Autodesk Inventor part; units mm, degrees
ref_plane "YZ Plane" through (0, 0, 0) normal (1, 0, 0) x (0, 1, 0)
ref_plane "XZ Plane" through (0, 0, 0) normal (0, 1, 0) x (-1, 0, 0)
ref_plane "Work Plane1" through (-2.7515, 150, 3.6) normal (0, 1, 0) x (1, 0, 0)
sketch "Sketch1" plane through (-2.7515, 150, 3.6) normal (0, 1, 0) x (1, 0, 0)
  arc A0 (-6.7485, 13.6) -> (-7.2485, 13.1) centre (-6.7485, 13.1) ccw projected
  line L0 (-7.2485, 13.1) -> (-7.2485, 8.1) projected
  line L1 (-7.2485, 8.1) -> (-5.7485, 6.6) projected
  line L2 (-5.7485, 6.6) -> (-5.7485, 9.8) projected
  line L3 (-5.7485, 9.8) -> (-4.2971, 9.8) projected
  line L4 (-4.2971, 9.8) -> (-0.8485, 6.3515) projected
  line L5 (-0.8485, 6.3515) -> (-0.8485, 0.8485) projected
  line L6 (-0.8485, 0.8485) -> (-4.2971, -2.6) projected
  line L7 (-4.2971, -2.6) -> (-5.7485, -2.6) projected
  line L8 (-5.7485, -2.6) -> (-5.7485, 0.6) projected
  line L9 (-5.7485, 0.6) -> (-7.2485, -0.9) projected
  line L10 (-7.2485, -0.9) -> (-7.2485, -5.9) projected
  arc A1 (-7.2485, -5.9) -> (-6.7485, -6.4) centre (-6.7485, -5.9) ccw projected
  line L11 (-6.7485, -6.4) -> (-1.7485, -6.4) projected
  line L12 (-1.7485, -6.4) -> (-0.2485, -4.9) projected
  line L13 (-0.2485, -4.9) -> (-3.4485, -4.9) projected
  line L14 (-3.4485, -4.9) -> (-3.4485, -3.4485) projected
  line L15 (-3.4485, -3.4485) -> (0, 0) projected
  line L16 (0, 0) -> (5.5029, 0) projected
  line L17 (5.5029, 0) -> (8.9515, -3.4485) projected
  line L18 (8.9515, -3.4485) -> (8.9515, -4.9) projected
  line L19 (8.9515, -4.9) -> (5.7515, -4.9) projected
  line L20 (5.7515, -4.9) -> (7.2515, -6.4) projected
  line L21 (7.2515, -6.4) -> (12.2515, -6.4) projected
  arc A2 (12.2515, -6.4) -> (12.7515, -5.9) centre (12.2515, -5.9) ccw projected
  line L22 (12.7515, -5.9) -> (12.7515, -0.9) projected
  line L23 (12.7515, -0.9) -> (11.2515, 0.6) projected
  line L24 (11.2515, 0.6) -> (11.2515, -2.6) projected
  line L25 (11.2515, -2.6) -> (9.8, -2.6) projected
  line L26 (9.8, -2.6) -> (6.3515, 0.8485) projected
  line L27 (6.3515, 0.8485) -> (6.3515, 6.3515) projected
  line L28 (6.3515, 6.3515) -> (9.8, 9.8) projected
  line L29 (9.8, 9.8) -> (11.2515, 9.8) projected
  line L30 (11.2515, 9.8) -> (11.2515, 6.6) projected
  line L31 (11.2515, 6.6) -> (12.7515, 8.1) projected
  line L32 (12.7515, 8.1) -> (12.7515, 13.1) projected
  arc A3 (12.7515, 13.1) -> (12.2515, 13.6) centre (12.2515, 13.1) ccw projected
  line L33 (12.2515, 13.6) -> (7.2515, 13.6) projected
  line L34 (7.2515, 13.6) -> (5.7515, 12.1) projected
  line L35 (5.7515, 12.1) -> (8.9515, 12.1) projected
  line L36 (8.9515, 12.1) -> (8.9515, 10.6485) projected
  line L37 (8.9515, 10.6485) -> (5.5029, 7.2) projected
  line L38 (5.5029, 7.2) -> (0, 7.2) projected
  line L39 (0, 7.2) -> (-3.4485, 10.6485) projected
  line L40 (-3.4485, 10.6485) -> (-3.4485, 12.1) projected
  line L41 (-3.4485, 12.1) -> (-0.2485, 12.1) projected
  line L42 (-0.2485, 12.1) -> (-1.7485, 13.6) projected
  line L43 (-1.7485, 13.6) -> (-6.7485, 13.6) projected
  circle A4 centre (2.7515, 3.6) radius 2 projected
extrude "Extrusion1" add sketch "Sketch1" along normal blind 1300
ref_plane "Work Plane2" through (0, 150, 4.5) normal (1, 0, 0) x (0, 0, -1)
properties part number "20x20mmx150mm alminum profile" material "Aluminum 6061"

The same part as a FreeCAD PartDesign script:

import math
import FreeCAD as App
import Part
import Sketcher
from FreeCAD import Vector
Q = App.Units.Quantity

doc = App.newDocument("Part")
params = doc.addObject("Spreadsheet::Sheet", "Params")
for row, (alias, value) in enumerate([
    ("sketch1_diameter", "4 mm"),
    ("sketch1_radius", "0.5 mm"),
    ("sketch1_width", "5 mm"),
    ("sketch1_width2", "3.2 mm"),
    ("pad1_length", "1300 mm"),
], start=1):
    params.set(f"A{row}", alias)
    params.set(f"B{row}", "=" + value)
    params.setAlias(f"B{row}", alias)

body = doc.addObject("PartDesign::Body", "Body")

sketch1 = body.newObject("Sketcher::SketchObject", "Sketch")
sketch1.AttachmentSupport = (doc.getObject("XZ_Plane"), [""])
sketch1.MapMode = "FlatFace"
sketch1.AttachmentOffset = App.Placement(Vector(0, 0, -150), App.Rotation())
sketch1.addGeometry([
    Part.LineSegment(Vector(-4.5, -10, 0), Vector(-9.5, -10, 0)),
    Part.ArcOfCircle(Part.Circle(Vector(-9.5, -9.5, 0), Vector(0, 0, 1), 0.5), math.radians(180), math.radians(270)),
    Part.LineSegment(Vector(-10, -9.5, 0), Vector(-10, -4.5, 0)),
    Part.LineSegment(Vector(-10, -4.5, 0), Vector(-8.5, -3, 0)),
    Part.LineSegment(Vector(-8.5, -3, 0), Vector(-8.5, -6.2, 0)),
    Part.LineSegment(Vector(-8.5, -6.2, 0), Vector(-7, -6.2, 0)),
    Part.LineSegment(Vector(-7, -6.2, 0), Vector(-3.6, -2.8, 0)),
    Part.LineSegment(Vector(-3.6, -2.8, 0), Vector(-3.6, 2.8, 0)),
    Part.LineSegment(Vector(-3.6, 2.8, 0), Vector(-7, 6.2, 0)),
    Part.LineSegment(Vector(-7, 6.2, 0), Vector(-8.5, 6.2, 0)),
    Part.LineSegment(Vector(-8.5, 6.2, 0), Vector(-8.5, 3, 0)),
    Part.LineSegment(Vector(-8.5, 3, 0), Vector(-10, 4.5, 0)),
    Part.LineSegment(Vector(-10, 4.5, 0), Vector(-10, 9.5, 0)),
    Part.ArcOfCircle(Part.Circle(Vector(-9.5, 9.5, 0), Vector(0, 0, 1), 0.5), math.radians(90), math.radians(180)),
    Part.LineSegment(Vector(-9.5, 10, 0), Vector(-4.5, 10, 0)),
    Part.LineSegment(Vector(-4.5, 10, 0), Vector(-3, 8.5, 0)),
    Part.LineSegment(Vector(-3, 8.5, 0), Vector(-6.2, 8.5, 0)),
    Part.LineSegment(Vector(-6.2, 8.5, 0), Vector(-6.2, 7, 0)),
    Part.LineSegment(Vector(-6.2, 7, 0), Vector(-2.8, 3.6, 0)),
    Part.LineSegment(Vector(-2.8, 3.6, 0), Vector(2.8, 3.6, 0)),
    Part.LineSegment(Vector(2.8, 3.6, 0), Vector(6.2, 7, 0)),
    Part.LineSegment(Vector(6.2, 7, 0), Vector(6.2, 8.5, 0)),
    Part.LineSegment(Vector(6.2, 8.5, 0), Vector(3, 8.5, 0)),
    Part.LineSegment(Vector(3, 8.5, 0), Vector(4.5, 10, 0)),
    Part.LineSegment(Vector(4.5, 10, 0), Vector(9.5, 10, 0)),
    Part.ArcOfCircle(Part.Circle(Vector(9.5, 9.5, 0), Vector(0, 0, 1), 0.5), math.radians(0), math.radians(90)),
    Part.LineSegment(Vector(10, 9.5, 0), Vector(10, 4.5, 0)),
    Part.LineSegment(Vector(10, 4.5, 0), Vector(8.5, 3, 0)),
    Part.LineSegment(Vector(8.5, 3, 0), Vector(8.5, 6.2, 0)),
    Part.LineSegment(Vector(8.5, 6.2, 0), Vector(7, 6.2, 0)),
    Part.LineSegment(Vector(7, 6.2, 0), Vector(3.6, 2.8, 0)),
    Part.LineSegment(Vector(3.6, 2.8, 0), Vector(3.6, -2.8, 0)),
    Part.LineSegment(Vector(3.6, -2.8, 0), Vector(7, -6.2, 0)),
    Part.LineSegment(Vector(7, -6.2, 0), Vector(8.5, -6.2, 0)),
    Part.LineSegment(Vector(8.5, -6.2, 0), Vector(8.5, -3, 0)),
    Part.LineSegment(Vector(8.5, -3, 0), Vector(10, -4.5, 0)),
    Part.LineSegment(Vector(10, -4.5, 0), Vector(10, -9.5, 0)),
    Part.ArcOfCircle(Part.Circle(Vector(9.5, -9.5, 0), Vector(0, 0, 1), 0.5), math.radians(-90), math.radians(0)),
    Part.LineSegment(Vector(9.5, -10, 0), Vector(4.5, -10, 0)),
    Part.LineSegment(Vector(4.5, -10, 0), Vector(3, -8.5, 0)),
    Part.LineSegment(Vector(3, -8.5, 0), Vector(6.2, -8.5, 0)),
    Part.LineSegment(Vector(6.2, -8.5, 0), Vector(6.2, -7, 0)),
    Part.LineSegment(Vector(6.2, -7, 0), Vector(2.8, -3.6, 0)),
    Part.LineSegment(Vector(2.8, -3.6, 0), Vector(-2.8, -3.6, 0)),
    Part.LineSegment(Vector(-2.8, -3.6, 0), Vector(-6.2, -7, 0)),
    Part.LineSegment(Vector(-6.2, -7, 0), Vector(-6.2, -8.5, 0)),
    Part.LineSegment(Vector(-6.2, -8.5, 0), Vector(-3, -8.5, 0)),
    Part.LineSegment(Vector(-3, -8.5, 0), Vector(-4.5, -10, 0)),
    Part.Circle(Vector(0, 0, 0), Vector(0, 0, 1), 2),
], False)
sketch1.addConstraint([
    Sketcher.Constraint("Tangent", 0, 2, 1, 2),
    Sketcher.Constraint("Tangent", 1, 1, 2, 1),
    Sketcher.Constraint("Coincident", 2, 2, 3, 1),
    Sketcher.Constraint("Coincident", 3, 2, 4, 1),
    Sketcher.Constraint("Coincident", 4, 2, 5, 1),
    Sketcher.Constraint("Coincident", 5, 2, 6, 1),
    Sketcher.Constraint("Coincident", 6, 2, 7, 1),
    Sketcher.Constraint("Coincident", 7, 2, 8, 1),
    Sketcher.Constraint("Coincident", 8, 2, 9, 1),
    Sketcher.Constraint("Coincident", 9, 2, 10, 1),
    Sketcher.Constraint("Coincident", 10, 2, 11, 1),
    Sketcher.Constraint("Coincident", 11, 2, 12, 1),
    Sketcher.Constraint("Tangent", 12, 2, 13, 2),
    Sketcher.Constraint("Tangent", 13, 1, 14, 1),
    Sketcher.Constraint("Coincident", 14, 2, 15, 1),
    Sketcher.Constraint("Coincident", 15, 2, 16, 1),
    Sketcher.Constraint("Coincident", 16, 2, 17, 1),
    Sketcher.Constraint("Coincident", 17, 2, 18, 1),
    Sketcher.Constraint("Coincident", 18, 2, 19, 1),
    Sketcher.Constraint("Coincident", 19, 2, 20, 1),
    Sketcher.Constraint("Coincident", 20, 2, 21, 1),
    Sketcher.Constraint("Coincident", 21, 2, 22, 1),
    Sketcher.Constraint("Coincident", 22, 2, 23, 1),
    Sketcher.Constraint("Coincident", 23, 2, 24, 1),
    Sketcher.Constraint("Tangent", 24, 2, 25, 2),
    Sketcher.Constraint("Tangent", 25, 1, 26, 1),
    Sketcher.Constraint("Coincident", 26, 2, 27, 1),
    Sketcher.Constraint("Coincident", 27, 2, 28, 1),
    Sketcher.Constraint("Coincident", 28, 2, 29, 1),
    Sketcher.Constraint("Coincident", 29, 2, 30, 1),
    Sketcher.Constraint("Coincident", 30, 2, 31, 1),
    Sketcher.Constraint("Coincident", 31, 2, 32, 1),
    Sketcher.Constraint("Coincident", 32, 2, 33, 1),
    Sketcher.Constraint("Coincident", 33, 2, 34, 1),
    Sketcher.Constraint("Coincident", 34, 2, 35, 1),
    Sketcher.Constraint("Coincident", 35, 2, 36, 1),
    Sketcher.Constraint("Tangent", 36, 2, 37, 2),
    Sketcher.Constraint("Tangent", 37, 1, 38, 1),
    Sketcher.Constraint("Coincident", 38, 2, 39, 1),
    Sketcher.Constraint("Coincident", 39, 2, 40, 1),
    Sketcher.Constraint("Coincident", 40, 2, 41, 1),
    Sketcher.Constraint("Coincident", 41, 2, 42, 1),
    Sketcher.Constraint("Coincident", 42, 2, 43, 1),
    Sketcher.Constraint("Coincident", 43, 2, 44, 1),
    Sketcher.Constraint("Coincident", 44, 2, 45, 1),
    Sketcher.Constraint("Coincident", 45, 2, 46, 1),
    Sketcher.Constraint("Coincident", 46, 2, 47, 1),
    Sketcher.Constraint("Coincident", 47, 2, 0, 1),
    Sketcher.Constraint("Horizontal", 0),
    Sketcher.Constraint("Vertical", 2),
    Sketcher.Constraint("Vertical", 4),
    Sketcher.Constraint("Horizontal", 5),
    Sketcher.Constraint("Vertical", 7),
    Sketcher.Constraint("Horizontal", 9),
    Sketcher.Constraint("Vertical", 10),
    Sketcher.Constraint("Vertical", 12),
    Sketcher.Constraint("Horizontal", 14),
    Sketcher.Constraint("Horizontal", 16),
    Sketcher.Constraint("Vertical", 17),
    Sketcher.Constraint("Horizontal", 19),
    Sketcher.Constraint("Vertical", 21),
    Sketcher.Constraint("Horizontal", 22),
    Sketcher.Constraint("Horizontal", 24),
    Sketcher.Constraint("Vertical", 26),
    Sketcher.Constraint("Vertical", 28),
    Sketcher.Constraint("Horizontal", 29),
    Sketcher.Constraint("Vertical", 31),
    Sketcher.Constraint("Horizontal", 33),
    Sketcher.Constraint("Vertical", 34),
    Sketcher.Constraint("Vertical", 36),
    Sketcher.Constraint("Horizontal", 38),
    Sketcher.Constraint("Horizontal", 40),
    Sketcher.Constraint("Vertical", 41),
    Sketcher.Constraint("Horizontal", 43),
    Sketcher.Constraint("Vertical", 45),
    Sketcher.Constraint("Horizontal", 46),
    Sketcher.Constraint("Coincident", 48, 3, -1, 1),
    Sketcher.Constraint("Equal", 1, 13),
    Sketcher.Constraint("Equal", 13, 25),
    Sketcher.Constraint("Equal", 25, 37),
    Sketcher.Constraint("Symmetric", 1, 3, 25, 3, -1, 1),
    Sketcher.Constraint("Symmetric", 13, 3, 37, 3, -1, 1),
    Sketcher.Constraint("Symmetric", 3, 2, 27, 2, -1, 1),
    Sketcher.Constraint("Symmetric", 5, 2, 29, 2, -1, 1),
    Sketcher.Constraint("Symmetric", 6, 2, 30, 2, -1, 1),
    Sketcher.Constraint("Symmetric", 8, 2, 32, 2, -1, 1),
    Sketcher.Constraint("Symmetric", 10, 2, 34, 2, -1, 1),
    Sketcher.Constraint("Symmetric", 15, 2, 39, 2, -1, 1),
    Sketcher.Constraint("Symmetric", 17, 2, 41, 2, -1, 1),
    Sketcher.Constraint("Symmetric", 18, 2, 42, 2, -1, 1),
    Sketcher.Constraint("Symmetric", 20, 2, 44, 2, -1, 1),
    Sketcher.Constraint("Symmetric", 22, 2, 46, 2, -1, 1),
    Sketcher.Constraint("Symmetric", 13, 3, 25, 3, -2),
    Sketcher.Constraint("Symmetric", 17, 2, 20, 2, -2),
    Sketcher.Constraint("Symmetric", 15, 2, 22, 2, -2),
    Sketcher.Constraint("Symmetric", 10, 2, 27, 2, -2),
    Sketcher.Constraint("Symmetric", 8, 2, 29, 2, -2),
    Sketcher.Constraint("Parallel", 3, 6),
    Sketcher.Constraint("Perpendicular", 6, 8),
    Sketcher.Constraint("Parallel", 8, 11),
    Sketcher.Constraint("Parallel", 11, 15),
    Sketcher.Constraint("Parallel", 15, 18),
    Sketcher.Constraint("Perpendicular", 18, 20),
    Sketcher.Constraint("Parallel", 20, 23),
    Sketcher.Constraint("Parallel", 23, 27),
    Sketcher.Constraint("Perpendicular", 30, 32),
    Sketcher.Constraint("Parallel", 32, 35),
    Sketcher.Constraint("Parallel", 35, 39),
    Sketcher.Constraint("Perpendicular", 42, 44),
    Sketcher.Constraint("Parallel", 44, 47),
    Sketcher.Constraint("Horizontal", 11, 2, 26, 2),
    Sketcher.Constraint("Equal", 38, 2),
    Sketcher.Constraint("Equal", 46, 4),
    Sketcher.Constraint("Equal", 43, 7),
    Sketcher.Constraint("Equal", 33, 17),
    Sketcher.Constraint("Equal", 11, 15),
    Sketcher.Constraint("Equal", 8, 18),
    Sketcher.Constraint("Diameter", 48, Q("4 mm")),
    Sketcher.Constraint("Radius", 1, Q("0.5 mm")),
    Sketcher.Constraint("DistanceX", 0, 2, 0, 1, Q("5 mm")),
    Sketcher.Constraint("DistanceX", 16, 2, 16, 1, Q("3.2 mm")),
    Sketcher.Constraint("DistanceY", 0, 2, -1, 1, Q("10 mm")),
    Sketcher.Constraint("DistanceY", 3, 2, -1, 1, Q("3 mm")),
    Sketcher.Constraint("DistanceX", 6, 2, -1, 1, Q("3.6 mm")),
    Sketcher.Constraint("DistanceX", 19, 1, 19, 2, Q("5.503 mm")),
])
sketch1.setExpression("Constraints[117]", "Params.sketch1_diameter")
sketch1.setExpression("Constraints[118]", "Params.sketch1_radius")
sketch1.setExpression("Constraints[119]", "Params.sketch1_width")
sketch1.setExpression("Constraints[120]", "Params.sketch1_width2")
pad1 = body.newObject("PartDesign::Pad", "Pad")
pad1.Profile = sketch1
pad1.setExpression("Length", "Params.pad1_length")
pad1.Reversed = True

doc.recompute()
